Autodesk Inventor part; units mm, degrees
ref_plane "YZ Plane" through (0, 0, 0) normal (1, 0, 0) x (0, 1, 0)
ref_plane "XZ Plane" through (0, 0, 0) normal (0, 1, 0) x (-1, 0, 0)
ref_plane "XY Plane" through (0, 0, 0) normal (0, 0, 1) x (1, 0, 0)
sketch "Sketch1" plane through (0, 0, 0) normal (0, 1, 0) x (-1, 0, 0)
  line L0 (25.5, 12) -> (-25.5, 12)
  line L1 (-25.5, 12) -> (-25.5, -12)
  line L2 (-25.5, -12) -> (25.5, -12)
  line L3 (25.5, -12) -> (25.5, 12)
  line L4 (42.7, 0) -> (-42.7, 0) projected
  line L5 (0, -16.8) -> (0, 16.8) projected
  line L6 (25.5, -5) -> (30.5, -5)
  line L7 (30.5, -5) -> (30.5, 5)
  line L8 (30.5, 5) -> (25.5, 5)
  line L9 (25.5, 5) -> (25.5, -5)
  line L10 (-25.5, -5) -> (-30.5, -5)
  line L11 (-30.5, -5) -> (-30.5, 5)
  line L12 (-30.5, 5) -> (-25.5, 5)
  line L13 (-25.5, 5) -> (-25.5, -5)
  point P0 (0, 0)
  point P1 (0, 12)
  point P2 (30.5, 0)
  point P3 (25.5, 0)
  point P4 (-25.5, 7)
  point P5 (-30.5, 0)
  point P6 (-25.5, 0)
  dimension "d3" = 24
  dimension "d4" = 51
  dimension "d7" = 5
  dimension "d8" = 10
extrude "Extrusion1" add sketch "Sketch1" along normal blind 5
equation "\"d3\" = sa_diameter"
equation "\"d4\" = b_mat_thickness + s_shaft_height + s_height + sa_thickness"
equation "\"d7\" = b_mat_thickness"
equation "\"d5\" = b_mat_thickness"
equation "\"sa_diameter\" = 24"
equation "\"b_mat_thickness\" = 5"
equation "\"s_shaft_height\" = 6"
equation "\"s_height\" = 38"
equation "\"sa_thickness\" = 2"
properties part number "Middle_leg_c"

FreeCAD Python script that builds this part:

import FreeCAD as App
import Part
import Sketcher
from FreeCAD import Vector
Q = App.Units.Quantity


def add_polygon(sketch, points):
    """Adds a closed chain of lines whose ends are joined by coincident constraints."""
    first, n = sketch.GeometryCount, len(points)
    for a, b in zip(points, points[1:] + points[:1]):
        sketch.addGeometry(Part.LineSegment(App.Vector(*a, 0), App.Vector(*b, 0)), False)
    for i in range(n):
        sketch.addConstraint(Sketcher.Constraint("Coincident", first + i, 2, first + (i + 1) % n, 1))

doc = App.newDocument("Part")
params = doc.addObject("Spreadsheet::Sheet", "Params")
for row, (alias, value) in enumerate([
    ("sketch1_width", "51 mm"),
    ("sketch1_width2", "5 mm"),
    ("sketch1_height", "10 mm"),
    ("pad1_length", "5 mm"),
], start=1):
    params.set(f"A{row}", alias)
    params.set(f"B{row}", "=" + value)
    params.setAlias(f"B{row}", alias)

body = doc.addObject("PartDesign::Body", "Body")

# Sketch on XZ plane
sketch1 = body.newObject("Sketcher::SketchObject", "Sketch")
sketch1.AttachmentSupport = (doc.getObject("XZ_Plane"), [""])
sketch1.MapMode = "FlatFace"
add_polygon(sketch1, [(-25.5, 5), (-25.5, 12), (25.5, 12), (25.5, 5), (30.5, 5), (30.5, -5), (25.5, -5), (25.5, -12), (-25.5, -12), (-25.5, -5), (-30.5, -5), (-30.5, 5)])  # lines 0-11
sketch1.addConstraint(Sketcher.Constraint("Vertical", 0))
sketch1.addConstraint(Sketcher.Constraint("Horizontal", 1))
sketch1.addConstraint(Sketcher.Constraint("Vertical", 2))
sketch1.addConstraint(Sketcher.Constraint("Horizontal", 3))
sketch1.addConstraint(Sketcher.Constraint("Vertical", 4))
sketch1.addConstraint(Sketcher.Constraint("Horizontal", 5))
sketch1.addConstraint(Sketcher.Constraint("Vertical", 6))
sketch1.addConstraint(Sketcher.Constraint("Horizontal", 7))
sketch1.addConstraint(Sketcher.Constraint("Vertical", 8))
sketch1.addConstraint(Sketcher.Constraint("Horizontal", 9))
sketch1.addConstraint(Sketcher.Constraint("Vertical", 10))
sketch1.addConstraint(Sketcher.Constraint("Horizontal", 11))
sketch1.addConstraint(Sketcher.Constraint("Symmetric", 0, 2, 6, 2, -1, 1))
sketch1.addConstraint(Sketcher.Constraint("Symmetric", 2, 2, 8, 2, -1, 1))
sketch1.addConstraint(Sketcher.Constraint("Symmetric", 4, 2, 10, 2, -1, 1))
sketch1.addConstraint(Sketcher.Constraint("Symmetric", 5, 2, 8, 2, -2))
sketch1.addConstraint(Sketcher.Constraint("DistanceX", 1, 1, 1, 2, Q("51 mm")))
sketch1.addConstraint(Sketcher.Constraint("DistanceX", 3, 1, 3, 2, Q("5 mm")))
sketch1.addConstraint(Sketcher.Constraint("DistanceY", 4, 2, 4, 1, Q("10 mm")))
sketch1.addConstraint(Sketcher.Constraint("DistanceY", 6, 2, 1, 2, Q("24 mm")))
sketch1.setExpression("Constraints[28]", "Params.sketch1_width")
sketch1.setExpression("Constraints[29]", "Params.sketch1_width2")
sketch1.setExpression("Constraints[30]", "Params.sketch1_height")
pad1 = body.newObject("PartDesign::Pad", "Pad")
pad1.Profile = sketch1
pad1.setExpression("Length", "Params.pad1_length")
pad1.Reversed = True

doc.recompute()
